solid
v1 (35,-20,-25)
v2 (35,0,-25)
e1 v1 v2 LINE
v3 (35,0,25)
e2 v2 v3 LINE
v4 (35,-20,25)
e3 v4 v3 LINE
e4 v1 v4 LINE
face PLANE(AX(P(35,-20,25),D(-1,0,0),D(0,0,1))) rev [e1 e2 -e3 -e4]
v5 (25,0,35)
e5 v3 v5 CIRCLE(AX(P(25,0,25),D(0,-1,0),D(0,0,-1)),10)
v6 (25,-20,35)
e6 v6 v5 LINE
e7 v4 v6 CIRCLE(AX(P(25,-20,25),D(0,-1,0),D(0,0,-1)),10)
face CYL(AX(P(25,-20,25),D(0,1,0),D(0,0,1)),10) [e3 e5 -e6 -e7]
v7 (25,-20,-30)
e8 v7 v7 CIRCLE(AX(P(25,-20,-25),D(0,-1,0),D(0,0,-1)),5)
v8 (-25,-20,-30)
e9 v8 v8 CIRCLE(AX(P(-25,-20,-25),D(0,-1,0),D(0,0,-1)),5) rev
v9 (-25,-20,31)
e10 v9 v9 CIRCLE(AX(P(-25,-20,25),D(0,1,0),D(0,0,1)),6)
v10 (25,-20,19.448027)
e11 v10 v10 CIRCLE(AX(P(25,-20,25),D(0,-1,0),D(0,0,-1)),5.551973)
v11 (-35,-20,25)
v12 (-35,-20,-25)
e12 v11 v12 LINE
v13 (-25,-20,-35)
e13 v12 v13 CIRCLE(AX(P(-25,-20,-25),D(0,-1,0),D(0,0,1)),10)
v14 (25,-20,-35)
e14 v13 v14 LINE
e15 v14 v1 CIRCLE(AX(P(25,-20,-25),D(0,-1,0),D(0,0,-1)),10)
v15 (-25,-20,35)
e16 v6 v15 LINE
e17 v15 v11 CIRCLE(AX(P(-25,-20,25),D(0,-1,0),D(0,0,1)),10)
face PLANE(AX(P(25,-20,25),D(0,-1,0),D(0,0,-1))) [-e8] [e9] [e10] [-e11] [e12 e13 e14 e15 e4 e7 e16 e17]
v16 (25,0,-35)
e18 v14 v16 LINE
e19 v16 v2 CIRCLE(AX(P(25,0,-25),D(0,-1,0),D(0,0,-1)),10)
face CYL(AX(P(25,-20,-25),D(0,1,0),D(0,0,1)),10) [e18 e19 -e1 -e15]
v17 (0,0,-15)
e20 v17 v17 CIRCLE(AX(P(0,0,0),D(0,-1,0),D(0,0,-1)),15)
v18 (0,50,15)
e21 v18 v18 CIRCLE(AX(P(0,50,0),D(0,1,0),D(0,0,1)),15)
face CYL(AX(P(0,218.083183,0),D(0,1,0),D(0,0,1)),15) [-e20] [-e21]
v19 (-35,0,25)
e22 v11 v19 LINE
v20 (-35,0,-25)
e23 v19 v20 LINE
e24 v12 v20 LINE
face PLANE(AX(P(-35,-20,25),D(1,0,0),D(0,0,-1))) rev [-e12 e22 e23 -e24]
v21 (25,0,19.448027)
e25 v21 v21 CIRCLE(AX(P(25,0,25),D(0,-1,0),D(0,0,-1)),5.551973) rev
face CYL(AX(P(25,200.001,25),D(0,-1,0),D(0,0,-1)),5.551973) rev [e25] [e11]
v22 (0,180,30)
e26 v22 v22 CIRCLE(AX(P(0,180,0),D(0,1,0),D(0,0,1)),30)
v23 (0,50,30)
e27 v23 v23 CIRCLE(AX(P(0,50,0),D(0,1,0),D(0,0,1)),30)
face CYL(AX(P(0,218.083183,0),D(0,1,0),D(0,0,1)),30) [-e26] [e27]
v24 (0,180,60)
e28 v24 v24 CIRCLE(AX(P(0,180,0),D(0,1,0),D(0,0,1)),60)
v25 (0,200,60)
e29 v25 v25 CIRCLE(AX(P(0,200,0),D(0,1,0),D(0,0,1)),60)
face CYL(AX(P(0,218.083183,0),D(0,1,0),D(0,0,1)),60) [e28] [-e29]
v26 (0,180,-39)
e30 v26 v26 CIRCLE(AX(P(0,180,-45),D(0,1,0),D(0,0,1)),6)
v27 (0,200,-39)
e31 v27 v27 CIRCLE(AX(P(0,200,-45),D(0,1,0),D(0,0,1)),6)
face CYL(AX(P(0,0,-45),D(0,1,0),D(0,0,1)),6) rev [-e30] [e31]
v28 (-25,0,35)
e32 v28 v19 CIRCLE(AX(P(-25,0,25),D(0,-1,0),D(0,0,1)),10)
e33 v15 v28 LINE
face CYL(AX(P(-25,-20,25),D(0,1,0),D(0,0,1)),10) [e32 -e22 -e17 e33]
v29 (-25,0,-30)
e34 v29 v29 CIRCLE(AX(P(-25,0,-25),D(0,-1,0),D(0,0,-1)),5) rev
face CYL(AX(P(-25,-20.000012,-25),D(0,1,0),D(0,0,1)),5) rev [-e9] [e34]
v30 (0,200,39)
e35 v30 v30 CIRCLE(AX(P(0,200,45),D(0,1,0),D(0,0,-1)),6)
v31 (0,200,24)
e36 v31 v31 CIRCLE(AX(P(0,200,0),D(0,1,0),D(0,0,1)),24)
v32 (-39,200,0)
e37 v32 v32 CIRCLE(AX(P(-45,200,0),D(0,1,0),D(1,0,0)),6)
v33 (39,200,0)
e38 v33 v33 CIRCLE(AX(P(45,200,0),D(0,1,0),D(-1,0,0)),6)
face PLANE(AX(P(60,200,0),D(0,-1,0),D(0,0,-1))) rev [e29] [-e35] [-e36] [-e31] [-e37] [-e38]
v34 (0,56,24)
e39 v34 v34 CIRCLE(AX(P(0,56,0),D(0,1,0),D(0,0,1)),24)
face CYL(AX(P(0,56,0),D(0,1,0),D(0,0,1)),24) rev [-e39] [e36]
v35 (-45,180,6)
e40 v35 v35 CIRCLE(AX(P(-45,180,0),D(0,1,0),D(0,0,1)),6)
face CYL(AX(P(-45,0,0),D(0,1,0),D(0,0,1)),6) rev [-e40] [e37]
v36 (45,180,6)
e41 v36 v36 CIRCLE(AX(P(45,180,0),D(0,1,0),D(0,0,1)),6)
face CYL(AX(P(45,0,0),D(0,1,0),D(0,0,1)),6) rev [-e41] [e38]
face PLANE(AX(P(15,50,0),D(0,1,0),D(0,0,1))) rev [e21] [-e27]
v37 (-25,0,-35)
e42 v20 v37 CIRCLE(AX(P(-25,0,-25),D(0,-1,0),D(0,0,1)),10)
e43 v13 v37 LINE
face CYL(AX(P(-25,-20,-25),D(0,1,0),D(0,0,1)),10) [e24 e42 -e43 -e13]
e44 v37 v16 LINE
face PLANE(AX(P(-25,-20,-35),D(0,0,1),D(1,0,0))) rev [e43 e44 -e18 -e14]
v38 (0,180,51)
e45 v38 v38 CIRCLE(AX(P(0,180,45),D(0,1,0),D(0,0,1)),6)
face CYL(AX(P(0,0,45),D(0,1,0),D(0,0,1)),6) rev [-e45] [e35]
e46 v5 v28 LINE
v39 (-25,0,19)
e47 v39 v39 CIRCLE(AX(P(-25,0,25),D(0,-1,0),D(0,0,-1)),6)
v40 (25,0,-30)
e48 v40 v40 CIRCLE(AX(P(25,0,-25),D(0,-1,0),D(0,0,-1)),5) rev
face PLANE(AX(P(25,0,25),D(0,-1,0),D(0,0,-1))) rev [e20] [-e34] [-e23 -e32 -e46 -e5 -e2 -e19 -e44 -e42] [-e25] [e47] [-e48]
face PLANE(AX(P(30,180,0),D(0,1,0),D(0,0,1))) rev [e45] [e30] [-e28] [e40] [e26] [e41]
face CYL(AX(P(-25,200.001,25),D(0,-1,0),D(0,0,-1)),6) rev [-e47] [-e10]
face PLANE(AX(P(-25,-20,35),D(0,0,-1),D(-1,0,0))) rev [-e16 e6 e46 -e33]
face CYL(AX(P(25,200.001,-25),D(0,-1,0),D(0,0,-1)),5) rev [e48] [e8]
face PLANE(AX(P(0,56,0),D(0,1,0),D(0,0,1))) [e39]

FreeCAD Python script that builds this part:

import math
import FreeCAD as App
import Part
import Sketcher
from FreeCAD import Vector

doc = App.newDocument("Part")
params = doc.addObject("Spreadsheet::Sheet", "Params")
for row, (alias, value) in enumerate([
    ("sketch1_width", "15 mm"),
    ("sketch1_width2", "30 mm"),
    ("sketch1_height", "50 mm"),
    ("sketch1_height2", "130 mm"),
    ("sketch1_height3", "20 mm"),
    ("revolution_angle", "360 deg"),
    ("sketch2_diameter", "12 mm"),
    ("sketch3_diameter", "48 mm"),
    ("pocket2_length", "144 mm"),
    ("sketch4_radius", "10 mm"),
    ("sketch4_width", "50 mm"),
    ("pad1_length", "20 mm"),
    ("sketch5_diameter", "12 mm"),
    ("sketch7_diameter", "10 mm"),
    ("sketch8_diameter", "10 mm"),
    ("sketch9_diameter", "10 mm"),
    ("pocket7_length", "1 mm"),
], start=1):
    params.set(f"A{row}", alias)
    params.set(f"B{row}", "=" + value)
    params.setAlias(f"B{row}", alias)

body = doc.addObject("PartDesign::Body", "Body")

# Sketch on XY plane
sketch1 = doc.addObject("Sketcher::SketchObject", "Sketch")
body.addObject(sketch1)
sketch1.AttachmentSupport = (doc.XY_Plane, [""])
sketch1.MapMode = "FlatFace"
sketch1.addGeometry(Part.LineSegment(Vector(0, 0, 0), Vector(15, 0, 0)), False)
sketch1.addGeometry(Part.LineSegment(Vector(15, 0, 0), Vector(15, 50, 0)), False)
sketch1.addGeometry(Part.LineSegment(Vector(15, 50, 0), Vector(30, 50, 0)), False)
sketch1.addGeometry(Part.LineSegment(Vector(30, 50, 0), Vector(30, 180, 0)), False)
sketch1.addGeometry(Part.LineSegment(Vector(30, 180, 0), Vector(60, 180, 0)), False)
sketch1.addGeometry(Part.LineSegment(Vector(60, 180, 0), Vector(60, 200, 0)), False)
sketch1.addGeometry(Part.LineSegment(Vector(60, 200, 0), Vector(0, 200, 0)), False)
sketch1.addGeometry(Part.LineSegment(Vector(0, 200, 0), Vector(0, 0, 0)), False)
sketch1.addConstraint(Sketcher.Constraint("Coincident", 0, 2, 1, 1))
sketch1.addConstraint(Sketcher.Constraint("Coincident", 1, 2, 2, 1))
sketch1.addConstraint(Sketcher.Constraint("Coincident", 2, 2, 3, 1))
sketch1.addConstraint(Sketcher.Constraint("Coincident", 3, 2, 4, 1))
sketch1.addConstraint(Sketcher.Constraint("Coincident", 4, 2, 5, 1))
sketch1.addConstraint(Sketcher.Constraint("Coincident", 5, 2, 6, 1))
sketch1.addConstraint(Sketcher.Constraint("Coincident", 6, 2, 7, 1))
sketch1.addConstraint(Sketcher.Constraint("Coincident", 7, 2, 0, 1))
sketch1.addConstraint(Sketcher.Constraint("Horizontal", 0))
sketch1.addConstraint(Sketcher.Constraint("Vertical", 1))
sketch1.addConstraint(Sketcher.Constraint("Horizontal", 2))
sketch1.addConstraint(Sketcher.Constraint("Vertical", 3))
sketch1.addConstraint(Sketcher.Constraint("Horizontal", 4))
sketch1.addConstraint(Sketcher.Constraint("Vertical", 5))
sketch1.addConstraint(Sketcher.Constraint("Horizontal", 6))
sketch1.addConstraint(Sketcher.Constraint("Vertical", 7))
sketch1.addConstraint(Sketcher.Constraint("Coincident", 7, 2, -1, 1))
sketch1.addConstraint(Sketcher.Constraint("Equal", 0, 2))
sketch1.addConstraint(Sketcher.Constraint("DistanceX", 0, 1, 0, 2, 15.0))
sketch1.addConstraint(Sketcher.Constraint("DistanceX", 4, 1, 4, 2, 30.0))
sketch1.addConstraint(Sketcher.Constraint("DistanceY", 1, 1, 1, 2, 50.0))
sketch1.addConstraint(Sketcher.Constraint("DistanceY", 3, 1, 3, 2, 130.0))
sketch1.addConstraint(Sketcher.Constraint("DistanceY", 5, 1, 5, 2, 20.0))
sketch1.setExpression("Constraints[18]", "Params.sketch1_width")
sketch1.setExpression("Constraints[19]", "Params.sketch1_width2")
sketch1.setExpression("Constraints[20]", "Params.sketch1_height")
sketch1.setExpression("Constraints[21]", "Params.sketch1_height2")
sketch1.setExpression("Constraints[22]", "Params.sketch1_height3")
revolution = doc.addObject("PartDesign::Revolution", "Revolution")
body.addObject(revolution)
revolution.Profile = sketch1
revolution.ReferenceAxis = (sketch1, ["V_Axis"])
revolution.setExpression("Angle", "Params.revolution_angle")

# Sketch on XZ plane
sketch2 = doc.addObject("Sketcher::SketchObject", "Sketch001")
body.addObject(sketch2)
sketch2.AttachmentSupport = (doc.XZ_Plane, [""])
sketch2.MapMode = "FlatFace"
sketch2.AttachmentOffset = App.Placement(Vector(0, 0, -200), App.Rotation())
sketch2.addGeometry(Part.Circle(Vector(0, -45, 0), Vector(0, 0, 1), 6), False)
sketch2.addConstraint(Sketcher.Constraint("PointOnObject", 0, 3, -2))
sketch2.addConstraint(Sketcher.Constraint("Diameter", 0, 12.0))
sketch2.addConstraint(Sketcher.Constraint("DistanceY", 0, 3, -1, 1, 45.0))
sketch2.setExpression("Constraints[1]", "Params.sketch2_diameter")
pocket1 = doc.addObject("PartDesign::Pocket", "Pocket")
body.addObject(pocket1)
pocket1.Profile = sketch2
pocket1.Type = "ThroughAll"
pocket1.Reversed = True
doc.recompute()

polarpattern = doc.addObject("PartDesign::PolarPattern", "PolarPattern")
body.addObject(polarpattern)
polarpattern.Originals = [pocket1]
polarpattern.Axis = (doc.Y_Axis, [""])
polarpattern.Angle = 360
polarpattern.Occurrences = 4
body.Tip = polarpattern

# Sketch on XZ plane
sketch3 = doc.addObject("Sketcher::SketchObject", "Sketch002")
body.addObject(sketch3)
sketch3.AttachmentSupport = (doc.XZ_Plane, [""])
sketch3.MapMode = "FlatFace"
sketch3.AttachmentOffset = App.Placement(Vector(0, 0, -200), App.Rotation())
sketch3.addGeometry(Part.Circle(Vector(0, 0, 0), Vector(0, 0, 1), 24), False)
sketch3.addConstraint(Sketcher.Constraint("Coincident", 0, 3, -1, 1))
sketch3.addConstraint(Sketcher.Constraint("Diameter", 0, 48.0))
sketch3.setExpression("Constraints[1]", "Params.sketch3_diameter")
pocket2 = doc.addObject("PartDesign::Pocket", "Pocket001")
body.addObject(pocket2)
pocket2.Profile = sketch3
pocket2.setExpression("Length", "Params.pocket2_length")
pocket2.Reversed = True

# Sketch on XZ plane
sketch4 = doc.addObject("Sketcher::SketchObject", "Sketch003")
body.addObject(sketch4)
sketch4.AttachmentSupport = (doc.XZ_Plane, [""])
sketch4.MapMode = "FlatFace"
sketch4.addGeometry(Part.LineSegment(Vector(25, 35, 0), Vector(-25, 35, 0)), False)
sketch4.addGeometry(Part.ArcOfCircle(Part.Circle(Vector(-25, 25, 0), Vector(0, 0, 1), 10), math.radians(90), math.radians(180)), False)
sketch4.addGeometry(Part.LineSegment(Vector(-35, 25, 0), Vector(-35, -25, 0)), False)
sketch4.addGeometry(Part.ArcOfCircle(Part.Circle(Vector(-25, -25, 0), Vector(0, 0, 1), 10), math.radians(180), math.radians(270)), False)
sketch4.addGeometry(Part.LineSegment(Vector(-25, -35, 0), Vector(25, -35, 0)), False)
sketch4.addGeometry(Part.ArcOfCircle(Part.Circle(Vector(25, -25, 0), Vector(0, 0, 1), 10), math.radians(-90), math.radians(0)), False)
sketch4.addGeometry(Part.LineSegment(Vector(35, -25, 0), Vector(35, 25, 0)), False)
sketch4.addGeometry(Part.ArcOfCircle(Part.Circle(Vector(25, 25, 0), Vector(0, 0, 1), 10), math.radians(0), math.radians(90)), False)
sketch4.addConstraint(Sketcher.Constraint("Tangent", 0, 2, 1, 1))
sketch4.addConstraint(Sketcher.Constraint("Tangent", 1, 2, 2, 1))
sketch4.addConstraint(Sketcher.Constraint("Tangent", 2, 2, 3, 1))
sketch4.addConstraint(Sketcher.Constraint("Tangent", 3, 2, 4, 1))
sketch4.addConstraint(Sketcher.Constraint("Tangent", 4, 2, 5, 1))
sketch4.addConstraint(Sketcher.Constraint("Tangent", 5, 2, 6, 1))
sketch4.addConstraint(Sketcher.Constraint("Tangent", 6, 2, 7, 1))
sketch4.addConstraint(Sketcher.Constraint("Tangent", 7, 2, 0, 1))
sketch4.addConstraint(Sketcher.Constraint("Horizontal", 0))
sketch4.addConstraint(Sketcher.Constraint("Vertical", 2))
sketch4.addConstraint(Sketcher.Constraint("Horizontal", 4))
sketch4.addConstraint(Sketcher.Constraint("Vertical", 6))
sketch4.addConstraint(Sketcher.Constraint("Equal", 1, 3))
sketch4.addConstraint(Sketcher.Constraint("Equal", 3, 5))
sketch4.addConstraint(Sketcher.Constraint("Equal", 5, 7))
sketch4.addConstraint(Sketcher.Constraint("Symmetric", 1, 3, 5, 3, -1, 1))
sketch4.addConstraint(Sketcher.Constraint("Equal", 4, 2))
sketch4.addConstraint(Sketcher.Constraint("Radius", 1, 10.0))
sketch4.addConstraint(Sketcher.Constraint("DistanceX", 0, 2, 0, 1, 50.0))
sketch4.setExpression("Constraints[17]", "Params.sketch4_radius")
sketch4.setExpression("Constraints[18]", "Params.sketch4_width")
pad1 = doc.addObject("PartDesign::Pad", "Pad")
body.addObject(pad1)
pad1.Profile = sketch4
pad1.setExpression("Length", "Params.pad1_length")

# Sketch on XZ plane
sketch5 = doc.addObject("Sketcher::SketchObject", "Sketch004")
body.addObject(sketch5)
sketch5.AttachmentSupport = (doc.XZ_Plane, [""])
sketch5.MapMode = "FlatFace"
sketch5.AttachmentOffset = App.Placement(Vector(0, 0, 20), App.Rotation())
sketch5.addGeometry(Part.Circle(Vector(-25, 25, 0), Vector(0, 0, 1), 6), False)
sketch5.addConstraint(Sketcher.Constraint("Diameter", 0, 12.0))
sketch5.addConstraint(Sketcher.Constraint("DistanceX", 0, 3, -1, 1, 25.0))
sketch5.addConstraint(Sketcher.Constraint("DistanceY", -1, 1, 0, 3, 25.0))
sketch5.setExpression("Constraints[0]", "Params.sketch5_diameter")
pocket3 = doc.addObject("PartDesign::Pocket", "Pocket002")
body.addObject(pocket3)
pocket3.Profile = sketch5
pocket3.Type = "UpToFirst"

# Sketch on XZ plane
sketch6 = doc.addObject("Sketcher::SketchObject", "Sketch005")
body.addObject(sketch6)
sketch6.AttachmentSupport = (doc.XZ_Plane, [""])
sketch6.MapMode = "FlatFace"
sketch6.AttachmentOffset = App.Placement(Vector(0, 0, 20), App.Rotation())
sketch6.addGeometry(Part.Circle(Vector(25, 25, 0), Vector(0, 0, 1), 6), False)
sketch6.addConstraint(Sketcher.Constraint("DistanceX", -1, 1, 0, 3, 25.0))
sketch6.addConstraint(Sketcher.Constraint("DistanceY", -1, 1, 0, 3, 25.0))
sketch6.addConstraint(Sketcher.Constraint("Diameter", 0, 11.103946))
pocket4 = doc.addObject("PartDesign::Pocket", "Pocket003")
body.addObject(pocket4)
pocket4.Profile = sketch6
pocket4.Type = "UpToFirst"

# Sketch on XZ plane
sketch7 = doc.addObject("Sketcher::SketchObject", "Sketch006")
body.addObject(sketch7)
sketch7.AttachmentSupport = (doc.XZ_Plane, [""])
sketch7.MapMode = "FlatFace"
sketch7.AttachmentOffset = App.Placement(Vector(0, 0, 20), App.Rotation())
sketch7.addGeometry(Part.Circle(Vector(25, -25, 0), Vector(0, 0, 1), 5), False)
sketch7.addConstraint(Sketcher.Constraint("Diameter", 0, 10.0))
sketch7.addConstraint(Sketcher.Constraint("DistanceX", -1, 1, 0, 3, 25.0))
sketch7.addConstraint(Sketcher.Constraint("DistanceY", 0, 3, -1, 1, 25.0))
sketch7.setExpression("Constraints[0]", "Params.sketch7_diameter")
pocket5 = doc.addObject("PartDesign::Pocket", "Pocket004")
body.addObject(pocket5)
pocket5.Profile = sketch7
pocket5.Type = "UpToFirst"

# Sketch on XZ plane
sketch8 = doc.addObject("Sketcher::SketchObject", "Sketch007")
body.addObject(sketch8)
sketch8.AttachmentSupport = (doc.XZ_Plane, [""])
sketch8.MapMode = "FlatFace"
sketch8.AttachmentOffset = App.Placement(Vector(0, 0, 20), App.Rotation())
sketch8.addGeometry(Part.Circle(Vector(-25, -25, 0), Vector(0, 0, 1), 5), False)
sketch8.addConstraint(Sketcher.Constraint("Diameter", 0, 10.0))
sketch8.addConstraint(Sketcher.Constraint("DistanceX", 0, 3, -1, 1, 25.0))
sketch8.addConstraint(Sketcher.Constraint("DistanceY", 0, 3, -1, 1, 25.0))
sketch8.setExpression("Constraints[0]", "Params.sketch8_diameter")
pocket6 = doc.addObject("PartDesign::Pocket", "Pocket005")
body.addObject(pocket6)
pocket6.Profile = sketch8
pocket6.Type = "UpToFirst"

# Sketch on XZ plane
sketch9 = doc.addObject("Sketcher::SketchObject", "Sketch008")
body.addObject(sketch9)
sketch9.AttachmentSupport = (doc.XZ_Plane, [""])
sketch9.MapMode = "FlatFace"
sketch9.AttachmentOffset = App.Placement(Vector(0, 0, 20), App.Rotation())
sketch9.addGeometry(Part.Circle(Vector(-25, -25, 0), Vector(0, 0, 1), 5), False)
sketch9.addConstraint(Sketcher.Constraint("Diameter", 0, 10.0))
sketch9.addConstraint(Sketcher.Constraint("DistanceX", 0, 3, -1, 1, 25.0))
sketch9.addConstraint(Sketcher.Constraint("DistanceY", 0, 3, -1, 1, 25.0))
sketch9.setExpression("Constraints[0]", "Params.sketch9_diameter")
pocket7 = doc.addObject("PartDesign::Pocket", "Pocket006")
body.addObject(pocket7)
pocket7.Profile = sketch9
pocket7.setExpression("Length", "Params.pocket7_length")
pocket7.Reversed = True

doc.recompute()
